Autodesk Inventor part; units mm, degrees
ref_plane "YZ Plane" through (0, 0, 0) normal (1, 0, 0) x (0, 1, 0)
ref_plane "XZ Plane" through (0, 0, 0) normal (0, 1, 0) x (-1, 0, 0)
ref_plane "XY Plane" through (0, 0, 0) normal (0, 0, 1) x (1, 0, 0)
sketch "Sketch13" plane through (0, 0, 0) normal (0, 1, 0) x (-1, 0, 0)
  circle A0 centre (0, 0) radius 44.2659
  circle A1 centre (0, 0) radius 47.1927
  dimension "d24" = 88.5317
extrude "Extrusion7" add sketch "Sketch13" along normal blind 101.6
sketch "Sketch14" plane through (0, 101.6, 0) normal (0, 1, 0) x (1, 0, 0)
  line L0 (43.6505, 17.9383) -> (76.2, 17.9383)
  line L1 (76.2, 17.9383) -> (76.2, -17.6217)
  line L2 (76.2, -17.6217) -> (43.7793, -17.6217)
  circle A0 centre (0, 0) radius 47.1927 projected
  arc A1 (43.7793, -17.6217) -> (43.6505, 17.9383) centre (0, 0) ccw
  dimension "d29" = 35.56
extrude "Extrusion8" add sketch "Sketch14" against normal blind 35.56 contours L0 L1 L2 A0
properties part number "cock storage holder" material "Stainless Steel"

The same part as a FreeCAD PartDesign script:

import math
import FreeCAD as App
import Part
import Sketcher
Q = App.Units.Quantity

doc = App.newDocument("Part")
body = doc.addObject("PartDesign::Body", "Body")

# Sketch on XZ plane
sketch1 = doc.addObject("Sketcher::SketchObject", "Sketch")
body.addObject(sketch1)
sketch1.AttachmentSupport = (doc.XZ_Plane, [""])
sketch1.MapMode = "FlatFace"
sketch1.addGeometry(Part.Circle(App.Vector(0, 0, 0), App.Vector(0, 0, 1), 47), False)
sketch1.addGeometry(Part.Circle(App.Vector(0, 0, 0), App.Vector(0, 0, 1), 44), False)
sketch1.addConstraint(Sketcher.Constraint("Coincident", 0, 3, -1, 1))
sketch1.addConstraint(Sketcher.Constraint("Coincident", 1, 3, -1, 1))
sketch1.addConstraint(Sketcher.Constraint("Diameter", 1, Q("3.4855 in")))
sketch1.addConstraint(Sketcher.Constraint("Diameter", 0, 94.3854))
pad1 = doc.addObject("PartDesign::Pad", "Pad")
body.addObject(pad1)
pad1.Profile = sketch1
pad1.Length = Q("4 in")
pad1.Reversed = True

# Sketch on XZ plane
sketch2 = doc.addObject("Sketcher::SketchObject", "Sketch001")
body.addObject(sketch2)
sketch2.AttachmentSupport = (doc.XZ_Plane, [""])
sketch2.MapMode = "FlatFace"
sketch2.AttachmentOffset = App.Placement(App.Vector(0, 0, -4 * 25.4), App.Rotation())
sketch2.addGeometry(Part.LineSegment(App.Vector(76, -18, 0), App.Vector(44, -18, 0)), False)
sketch2.addGeometry(Part.ArcOfCircle(Part.Circle(App.Vector(0, 0, 0), App.Vector(0, 0, 1), 47), math.radians(-22), math.radians(22)), False)
sketch2.addGeometry(Part.LineSegment(App.Vector(44, 18, 0), App.Vector(76, 18, 0)), False)
sketch2.addGeometry(Part.LineSegment(App.Vector(76, 18, 0), App.Vector(76, -18, 0)), False)
sketch2.addConstraint(Sketcher.Constraint("Coincident", 0, 2, 1, 1))
sketch2.addConstraint(Sketcher.Constraint("Coincident", 1, 2, 2, 1))
sketch2.addConstraint(Sketcher.Constraint("Coincident", 2, 2, 3, 1))
sketch2.addConstraint(Sketcher.Constraint("Coincident", 3, 2, 0, 1))
sketch2.addConstraint(Sketcher.Constraint("Horizontal", 0))
sketch2.addConstraint(Sketcher.Constraint("Horizontal", 2))
sketch2.addConstraint(Sketcher.Constraint("Vertical", 3))
sketch2.addConstraint(Sketcher.Constraint("Coincident", 1, 3, -1, 1))
sketch2.addConstraint(Sketcher.Constraint("DistanceY", 3, 2, 3, 1, Q("1.4 in")))
sketch2.addConstraint(Sketcher.Constraint("DistanceX", -1, 1, 2, 2, Q("3 in")))
sketch2.addConstraint(Sketcher.Constraint("Radius", 1, 47.1927))
sketch2.addConstraint(Sketcher.Constraint("DistanceX", 2, 1, 2, 2, Q("1.2764 in")))
pad2 = doc.addObject("PartDesign::Pad", "Pad001")
body.addObject(pad2)
pad2.Profile = sketch2
pad2.Length = Q("1.4 in")

doc.recompute()
